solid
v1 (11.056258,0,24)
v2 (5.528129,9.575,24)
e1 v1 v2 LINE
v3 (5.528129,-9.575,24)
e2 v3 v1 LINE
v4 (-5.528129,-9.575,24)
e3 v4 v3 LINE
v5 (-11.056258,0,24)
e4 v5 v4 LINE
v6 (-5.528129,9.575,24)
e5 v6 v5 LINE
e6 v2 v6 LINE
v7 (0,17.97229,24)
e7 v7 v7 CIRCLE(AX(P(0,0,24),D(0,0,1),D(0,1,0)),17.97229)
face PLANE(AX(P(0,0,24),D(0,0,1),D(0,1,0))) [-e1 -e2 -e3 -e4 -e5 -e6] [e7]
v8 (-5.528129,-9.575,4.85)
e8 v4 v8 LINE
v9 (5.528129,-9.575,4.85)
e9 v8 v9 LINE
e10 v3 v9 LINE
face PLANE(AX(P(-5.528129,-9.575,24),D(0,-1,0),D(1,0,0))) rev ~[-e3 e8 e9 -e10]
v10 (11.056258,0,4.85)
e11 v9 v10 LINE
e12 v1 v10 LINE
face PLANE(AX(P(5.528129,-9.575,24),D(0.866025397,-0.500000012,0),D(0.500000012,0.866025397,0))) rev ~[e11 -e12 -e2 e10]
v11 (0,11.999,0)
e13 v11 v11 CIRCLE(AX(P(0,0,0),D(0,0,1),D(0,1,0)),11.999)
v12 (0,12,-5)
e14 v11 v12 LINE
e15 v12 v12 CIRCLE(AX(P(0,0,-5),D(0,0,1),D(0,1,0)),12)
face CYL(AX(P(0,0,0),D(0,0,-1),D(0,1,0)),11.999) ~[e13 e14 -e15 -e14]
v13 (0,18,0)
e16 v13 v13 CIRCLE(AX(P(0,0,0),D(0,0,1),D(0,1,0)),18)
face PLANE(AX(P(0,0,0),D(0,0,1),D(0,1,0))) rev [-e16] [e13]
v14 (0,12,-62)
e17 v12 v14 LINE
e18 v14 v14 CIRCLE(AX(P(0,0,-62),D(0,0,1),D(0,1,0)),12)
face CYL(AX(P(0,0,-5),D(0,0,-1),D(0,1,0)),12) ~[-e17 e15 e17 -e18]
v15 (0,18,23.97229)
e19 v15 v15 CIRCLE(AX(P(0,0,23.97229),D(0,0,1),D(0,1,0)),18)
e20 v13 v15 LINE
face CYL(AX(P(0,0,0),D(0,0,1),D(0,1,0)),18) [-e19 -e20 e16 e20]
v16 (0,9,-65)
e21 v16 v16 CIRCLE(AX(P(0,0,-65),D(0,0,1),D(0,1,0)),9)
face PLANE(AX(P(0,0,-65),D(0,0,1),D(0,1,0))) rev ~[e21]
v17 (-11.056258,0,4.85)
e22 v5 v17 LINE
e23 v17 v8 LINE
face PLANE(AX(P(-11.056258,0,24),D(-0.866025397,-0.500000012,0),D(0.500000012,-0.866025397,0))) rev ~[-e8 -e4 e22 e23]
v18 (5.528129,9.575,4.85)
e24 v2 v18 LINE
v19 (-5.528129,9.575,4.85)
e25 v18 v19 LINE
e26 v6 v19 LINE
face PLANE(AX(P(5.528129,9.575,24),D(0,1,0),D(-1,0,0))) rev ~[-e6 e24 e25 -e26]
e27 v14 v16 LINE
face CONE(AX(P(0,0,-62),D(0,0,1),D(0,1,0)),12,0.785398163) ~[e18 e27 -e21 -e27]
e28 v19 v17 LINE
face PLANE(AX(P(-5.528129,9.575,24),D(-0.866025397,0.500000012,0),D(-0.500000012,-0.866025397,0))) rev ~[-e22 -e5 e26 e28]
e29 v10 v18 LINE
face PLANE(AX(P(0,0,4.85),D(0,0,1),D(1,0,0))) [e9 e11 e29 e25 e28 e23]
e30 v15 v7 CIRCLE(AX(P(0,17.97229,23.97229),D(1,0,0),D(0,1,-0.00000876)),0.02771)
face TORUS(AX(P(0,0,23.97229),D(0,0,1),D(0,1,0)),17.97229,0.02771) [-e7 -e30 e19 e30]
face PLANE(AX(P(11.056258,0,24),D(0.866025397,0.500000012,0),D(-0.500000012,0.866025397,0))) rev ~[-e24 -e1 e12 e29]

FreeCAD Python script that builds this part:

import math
import FreeCAD as App
import Part
import Sketcher

V = App.Vector
Q = App.Units.Quantity

doc = App.newDocument("Part")
params = doc.addObject("Spreadsheet::Sheet", "Params")
for row, (alias, value) in enumerate([
    ("sketch1_width", "9 mm"),
    ("sketch1_height", "89 mm"),
    ("sketch1_height2", "57 mm"),
    ("sketch1_length", "5 mm"),
    ("revolution_angle", "360 deg"),
    ("pocket1_length", "19.15 mm"),
], start=1):
    params.set(f"A{row}", alias)
    params.set(f"B{row}", "=" + value)
    params.setAlias(f"B{row}", alias)

body = doc.addObject("PartDesign::Body", "Body")

# Sketch on YZ plane
sketch1 = body.newObject("Sketcher::SketchObject", "Sketch")
sketch1.AttachmentSupport = (doc.getObject("YZ_Plane"), [""])
sketch1.MapMode = "FlatFace"
sketch1.addGeometry([
    Part.LineSegment(V(11.999, 0, 0), V(18, 0, 0)),  # 0
    Part.LineSegment(V(18, 0, 0), V(18, 23.97229, 0)),  # 1
    Part.ArcOfCircle(Part.Circle(V(17.97229, 23.97229, 0), V(0, 0, 1), 0.02771), math.radians(-0.000502), math.radians(90.000502)),  # 2
    Part.LineSegment(V(17.97229, 24, 0), V(0, 24, 0)),  # 3
    Part.LineSegment(V(0, 24, 0), V(0, -65, 0)),  # 4
    Part.LineSegment(V(0, -65, 0), V(9, -65, 0)),  # 5
    Part.LineSegment(V(9, -65, 0), V(12, -62, 0)),  # 6
    Part.LineSegment(V(12, -62, 0), V(12, -5, 0)),  # 7
    Part.LineSegment(V(12, -5, 0), V(11.999, 0, 0)),  # 8
], False)
sketch1.addConstraint([
    Sketcher.Constraint("Coincident", 0, 2, 1, 1),
    Sketcher.Constraint("Coincident", 1, 2, 2, 1),
    Sketcher.Constraint("Coincident", 2, 2, 3, 1),
    Sketcher.Constraint("Coincident", 3, 2, 4, 1),
    Sketcher.Constraint("Coincident", 4, 2, 5, 1),
    Sketcher.Constraint("Coincident", 5, 2, 6, 1),
    Sketcher.Constraint("Coincident", 6, 2, 7, 1),
    Sketcher.Constraint("Coincident", 7, 2, 8, 1),
    Sketcher.Constraint("Coincident", 8, 2, 0, 1),
    Sketcher.Constraint("Horizontal", 0),
    Sketcher.Constraint("Vertical", 1),
    Sketcher.Constraint("Horizontal", 3),
    Sketcher.Constraint("Vertical", 4),
    Sketcher.Constraint("Horizontal", 5),
    Sketcher.Constraint("Vertical", 7),
    Sketcher.Constraint("PointOnObject", 0, 2, -1),
    Sketcher.Constraint("PointOnObject", 3, 2, -2),
    Sketcher.Constraint("Horizontal", 2, 3, 1, 2),
    Sketcher.Constraint("DistanceX", 5, 1, 5, 2, 9.0),
    Sketcher.Constraint("DistanceY", 4, 2, 4, 1, 89.0),
    Sketcher.Constraint("DistanceY", 7, 1, 7, 2, 57.0),
    Sketcher.Constraint("Angle", 6, Q("45 deg")),
    Sketcher.Constraint("Distance", 8, 5.0),
    Sketcher.Constraint("DistanceX", -1, 1, 0, 2, 18.0),
    Sketcher.Constraint("DistanceY", -1, 1, 2, 2, 24.0),
    Sketcher.Constraint("DistanceX", 0, 1, 0, 2, 6.001),
    Sketcher.Constraint("Radius", 2, 0.02771),
    Sketcher.Constraint("DistanceX", 3, 2, 3, 1, 17.97229),
])
sketch1.setExpression("Constraints[18]", "Params.sketch1_width")
sketch1.setExpression("Constraints[19]", "Params.sketch1_height")
sketch1.setExpression("Constraints[20]", "Params.sketch1_height2")
sketch1.setExpression("Constraints[22]", "Params.sketch1_length")
revolution = body.newObject("PartDesign::Revolution", "Revolution")
revolution.Profile = sketch1
revolution.ReferenceAxis = (sketch1, ["V_Axis"])
revolution.setExpression("Angle", "Params.revolution_angle")

# Sketch on XY plane
sketch2 = body.newObject("Sketcher::SketchObject", "Sketch001")
sketch2.AttachmentSupport = (doc.getObject("XY_Plane"), [""])
sketch2.MapMode = "FlatFace"
sketch2.AttachmentOffset = App.Placement(V(0, 0, 24), App.Rotation())
sketch2.addGeometry([
    Part.LineSegment(V(11.056258, 0, 0), V(5.528129, 9.575, 0)),  # 0
    Part.LineSegment(V(5.528129, 9.575, 0), V(-5.528129, 9.575, 0)),  # 1
    Part.LineSegment(V(-5.528129, 9.575, 0), V(-11.056258, 0, 0)),  # 2
    Part.LineSegment(V(-11.056258, 0, 0), V(-5.528129, -9.575, 0)),  # 3
    Part.LineSegment(V(-5.528129, -9.575, 0), V(5.528129, -9.575, 0)),  # 4
    Part.LineSegment(V(5.528129, -9.575, 0), V(11.056258, 0, 0)),  # 5
], False)
sketch2.addConstraint([
    Sketcher.Constraint("Coincident", 0, 2, 1, 1),
    Sketcher.Constraint("Coincident", 1, 2, 2, 1),
    Sketcher.Constraint("Coincident", 2, 2, 3, 1),
    Sketcher.Constraint("Coincident", 3, 2, 4, 1),
    Sketcher.Constraint("Coincident", 4, 2, 5, 1),
    Sketcher.Constraint("Coincident", 5, 2, 0, 1),
    Sketcher.Constraint("Horizontal", 1),
    Sketcher.Constraint("Horizontal", 4),
    Sketcher.Constraint("Symmetric", 0, 2, 3, 2, -1, 1),
    Sketcher.Constraint("Symmetric", 2, 2, 5, 2, -1, 1),
    Sketcher.Constraint("PointOnObject", 2, 2, -1),
    Sketcher.Constraint("Parallel", 2, 5),
    Sketcher.Constraint("Vertical", 1, 2, 3, 2),
    Sketcher.Constraint("Angle", 0, Q("120.000001 deg")),
    Sketcher.Constraint("DistanceY", 3, 2, 1, 2, 19.15),
    Sketcher.Constraint("DistanceX", 1, 2, 1, 1, 11.056258),
])
pocket1 = body.newObject("PartDesign::Pocket", "Pocket")
pocket1.Profile = sketch2
pocket1.setExpression("Length", "Params.pocket1_length")

doc.recompute()
